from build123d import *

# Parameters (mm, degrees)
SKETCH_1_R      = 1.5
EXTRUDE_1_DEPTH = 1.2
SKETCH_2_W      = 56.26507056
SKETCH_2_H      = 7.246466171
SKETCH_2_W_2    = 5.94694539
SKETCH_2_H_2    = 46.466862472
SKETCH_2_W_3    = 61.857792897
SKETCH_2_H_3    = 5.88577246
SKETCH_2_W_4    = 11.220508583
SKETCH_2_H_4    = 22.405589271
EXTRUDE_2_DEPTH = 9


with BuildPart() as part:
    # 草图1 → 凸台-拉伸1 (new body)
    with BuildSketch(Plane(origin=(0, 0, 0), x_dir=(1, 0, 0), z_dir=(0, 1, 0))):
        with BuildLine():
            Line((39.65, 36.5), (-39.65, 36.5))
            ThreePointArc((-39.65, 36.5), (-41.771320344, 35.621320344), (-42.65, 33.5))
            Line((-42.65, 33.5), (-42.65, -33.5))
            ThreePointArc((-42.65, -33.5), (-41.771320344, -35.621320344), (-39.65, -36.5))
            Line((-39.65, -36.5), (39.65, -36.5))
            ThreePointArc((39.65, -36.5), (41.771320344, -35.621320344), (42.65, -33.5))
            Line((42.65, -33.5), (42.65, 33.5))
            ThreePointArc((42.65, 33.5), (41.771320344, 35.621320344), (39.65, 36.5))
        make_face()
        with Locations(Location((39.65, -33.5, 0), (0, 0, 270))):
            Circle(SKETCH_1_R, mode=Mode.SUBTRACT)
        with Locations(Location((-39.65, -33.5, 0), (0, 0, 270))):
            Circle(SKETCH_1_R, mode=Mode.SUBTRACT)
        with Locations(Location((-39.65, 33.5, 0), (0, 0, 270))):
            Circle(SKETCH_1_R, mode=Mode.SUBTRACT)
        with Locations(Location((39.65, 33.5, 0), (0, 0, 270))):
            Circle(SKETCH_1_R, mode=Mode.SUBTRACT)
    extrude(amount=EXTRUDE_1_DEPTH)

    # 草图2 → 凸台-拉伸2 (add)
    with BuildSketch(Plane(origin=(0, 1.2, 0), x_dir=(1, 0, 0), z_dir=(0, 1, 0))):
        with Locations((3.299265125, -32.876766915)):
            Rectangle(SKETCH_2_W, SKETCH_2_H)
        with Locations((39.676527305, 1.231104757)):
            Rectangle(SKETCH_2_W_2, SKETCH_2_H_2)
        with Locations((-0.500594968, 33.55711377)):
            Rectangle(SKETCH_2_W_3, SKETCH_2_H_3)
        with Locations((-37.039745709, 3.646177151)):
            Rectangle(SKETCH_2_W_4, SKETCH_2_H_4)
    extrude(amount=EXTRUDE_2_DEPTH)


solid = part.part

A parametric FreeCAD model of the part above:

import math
import FreeCAD as App
import Part
import Sketcher

V = App.Vector
Q = App.Units.Quantity


def add_polygon(sketch, points):
    """Adds a closed chain of lines whose ends are joined by coincident constraints."""
    first, n = sketch.GeometryCount, len(points)
    for a, b in zip(points, points[1:] + points[:1]):
        sketch.addGeometry(Part.LineSegment(App.Vector(*a, 0), App.Vector(*b, 0)), False)
    for i in range(n):
        sketch.addConstraint(Sketcher.Constraint("Coincident", first + i, 2, first + (i + 1) % n, 1))

doc = App.newDocument("Part")
params = doc.addObject("Spreadsheet::Sheet", "Params")
for row, (alias, value) in enumerate([
    ("sketch1_diameter", "3 mm"),
    ("sketch1_radius", "3 mm"),
    ("sketch1_height", "67 mm"),
    ("sketch1_width", "79.3 mm"),
    ("pad1_length", "1.2 mm"),
    ("pad2_length", "9 mm"),
], start=1):
    params.set(f"A{row}", alias)
    params.set(f"B{row}", "=" + value)
    params.setAlias(f"B{row}", alias)

body = doc.addObject("PartDesign::Body", "Body")

# Sketch on XZ plane
sketch1 = body.newObject("Sketcher::SketchObject", "Sketch")
sketch1.AttachmentSupport = (doc.getObject("XZ_Plane"), [""])
sketch1.MapMode = "FlatFace"
sketch1.addGeometry([
    Part.LineSegment(V(39.6, -36.5, 0), V(-39.6, -36.5, 0)),  # 0
    Part.ArcOfCircle(Part.Circle(V(-39.7, -33.5, 0), V(0, 0, 1), 3), math.radians(180), math.radians(270)),  # 1
    Part.LineSegment(V(-42.6, -33.5, 0), V(-42.6, 33.5, 0)),  # 2
    Part.ArcOfCircle(Part.Circle(V(-39.7, 33.5, 0), V(0, 0, 1), 3), math.radians(90), math.radians(180)),  # 3
    Part.LineSegment(V(-39.6, 36.5, 0), V(39.6, 36.5, 0)),  # 4
    Part.ArcOfCircle(Part.Circle(V(39.7, 33.5, 0), V(0, 0, 1), 3), math.radians(0), math.radians(90)),  # 5
    Part.LineSegment(V(42.6, 33.5, 0), V(42.6, -33.5, 0)),  # 6
    Part.ArcOfCircle(Part.Circle(V(39.7, -33.5, 0), V(0, 0, 1), 3), math.radians(-90), math.radians(0)),  # 7
    Part.Circle(V(-39.6, 33.5, 0), V(0, 0, 1), 1.5),  # 8
    Part.Circle(V(39.6, 33.5, 0), V(0, 0, 1), 1.5),  # 9
    Part.Circle(V(-39.6, -33.5, 0), V(0, 0, 1), 1.5),  # 10
    Part.Circle(V(39.6, -33.5, 0), V(0, 0, 1), 1.5),  # 11
], False)
sketch1.addConstraint([
    Sketcher.Constraint("Tangent", 0, 2, 1, 2),
    Sketcher.Constraint("Tangent", 1, 1, 2, 1),
    Sketcher.Constraint("Tangent", 2, 2, 3, 2),
    Sketcher.Constraint("Tangent", 3, 1, 4, 1),
    Sketcher.Constraint("Tangent", 4, 2, 5, 2),
    Sketcher.Constraint("Tangent", 5, 1, 6, 1),
    Sketcher.Constraint("Tangent", 6, 2, 7, 2),
    Sketcher.Constraint("Tangent", 7, 1, 0, 1),
    Sketcher.Constraint("Horizontal", 0),
    Sketcher.Constraint("Vertical", 2),
    Sketcher.Constraint("Horizontal", 4),
    Sketcher.Constraint("Vertical", 6),
    Sketcher.Constraint("Coincident", 8, 3, 3, 3),
    Sketcher.Constraint("Coincident", 9, 3, 5, 3),
    Sketcher.Constraint("Coincident", 10, 3, 1, 3),
    Sketcher.Constraint("Coincident", 11, 3, 7, 3),
    Sketcher.Constraint("Equal", 1, 3),
    Sketcher.Constraint("Equal", 3, 5),
    Sketcher.Constraint("Equal", 5, 7),
    Sketcher.Constraint("Equal", 8, 9),
    Sketcher.Constraint("Equal", 9, 10),
    Sketcher.Constraint("Equal", 10, 11),
    Sketcher.Constraint("Symmetric", 1, 3, 5, 3, -1, 1),
    Sketcher.Constraint("Diameter", 8, Q("3 mm")),
    Sketcher.Constraint("Radius", 1, Q("3 mm")),
    Sketcher.Constraint("DistanceY", 2, 1, 2, 2, Q("67 mm")),
    Sketcher.Constraint("DistanceX", 0, 2, 0, 1, Q("79.3 mm")),
])
sketch1.setExpression("Constraints[23]", "Params.sketch1_diameter")
sketch1.setExpression("Constraints[24]", "Params.sketch1_radius")
sketch1.setExpression("Constraints[25]", "Params.sketch1_height")
sketch1.setExpression("Constraints[26]", "Params.sketch1_width")
pad1 = body.newObject("PartDesign::Pad", "Pad")
pad1.Profile = sketch1
pad1.setExpression("Length", "Params.pad1_length")
pad1.Reversed = True

# Sketch on XZ plane
sketch2 = body.newObject("Sketcher::SketchObject", "Sketch001")
sketch2.AttachmentSupport = (doc.getObject("XZ_Plane"), [""])
sketch2.MapMode = "FlatFace"
sketch2.AttachmentOffset = App.Placement(V(0, 0, -1.2), App.Rotation())
add_polygon(sketch2, [(-25, 29), (-25, 36), (31, 36), (31, 29)])  # lines 0-3
add_polygon(sketch2, [(37, -24), (37, 22), (43, 22), (43, -24)])  # lines 4-7
add_polygon(sketch2, [(-31, -36), (-31, -31), (30, -31), (30, -36)])  # lines 8-11
add_polygon(sketch2, [(-43, -15), (-43, 8), (-31, 8), (-31, -15)])  # lines 12-15
sketch2.addConstraint([
    Sketcher.Constraint("Vertical", 0),
    Sketcher.Constraint("Horizontal", 1),
    Sketcher.Constraint("Vertical", 2),
    Sketcher.Constraint("Horizontal", 3),
    Sketcher.Constraint("Vertical", 4),
    Sketcher.Constraint("Horizontal", 5),
    Sketcher.Constraint("Vertical", 6),
    Sketcher.Constraint("Horizontal", 7),
    Sketcher.Constraint("Vertical", 8),
    Sketcher.Constraint("Horizontal", 9),
    Sketcher.Constraint("Vertical", 10),
    Sketcher.Constraint("Horizontal", 11),
    Sketcher.Constraint("Vertical", 12),
    Sketcher.Constraint("Horizontal", 13),
    Sketcher.Constraint("Vertical", 14),
    Sketcher.Constraint("Horizontal", 15),
    Sketcher.Constraint("Vertical", 11, 2, 13, 2),
    Sketcher.Constraint("DistanceY", -1, 1, 0, 2, Q("36.5 mm")),
    Sketcher.Constraint("DistanceY", 10, 2, -1, 1, Q("36.5 mm")),
    Sketcher.Constraint("DistanceX", -1, 1, 5, 2, Q("42.65 mm")),
    Sketcher.Constraint("DistanceX", 12, 2, -1, 1, Q("42.65 mm")),
    Sketcher.Constraint("DistanceX", 1, 1, 1, 2, Q("56.265071 mm")),
    Sketcher.Constraint("DistanceX", 13, 1, 13, 2, Q("11.220509 mm")),
    Sketcher.Constraint("DistanceY", 12, 1, 12, 2, Q("22.405589 mm")),
    Sketcher.Constraint("DistanceX", -1, 1, 1, 2, Q("31.4318 mm")),
    Sketcher.Constraint("DistanceX", -1, 1, 9, 2, Q("30.428301 mm")),
    Sketcher.Constraint("DistanceX", 5, 1, 5, 2, Q("5.946945 mm")),
    Sketcher.Constraint("DistanceY", 0, 1, 0, 2, Q("7.246466 mm")),
    Sketcher.Constraint("DistanceY", 4, 1, 4, 2, Q("46.466862 mm")),
    Sketcher.Constraint("DistanceY", 8, 1, 8, 2, Q("5.885772 mm")),
    Sketcher.Constraint("DistanceY", 14, 2, -1, 1, Q("14.848972 mm")),
    Sketcher.Constraint("DistanceY", 6, 2, 2, 2, Q("53.71807 mm")),
])
pad2 = body.newObject("PartDesign::Pad", "Pad001")
pad2.Profile = sketch2
pad2.setExpression("Length", "Params.pad2_length")
pad2.Reversed = True

doc.recompute()
